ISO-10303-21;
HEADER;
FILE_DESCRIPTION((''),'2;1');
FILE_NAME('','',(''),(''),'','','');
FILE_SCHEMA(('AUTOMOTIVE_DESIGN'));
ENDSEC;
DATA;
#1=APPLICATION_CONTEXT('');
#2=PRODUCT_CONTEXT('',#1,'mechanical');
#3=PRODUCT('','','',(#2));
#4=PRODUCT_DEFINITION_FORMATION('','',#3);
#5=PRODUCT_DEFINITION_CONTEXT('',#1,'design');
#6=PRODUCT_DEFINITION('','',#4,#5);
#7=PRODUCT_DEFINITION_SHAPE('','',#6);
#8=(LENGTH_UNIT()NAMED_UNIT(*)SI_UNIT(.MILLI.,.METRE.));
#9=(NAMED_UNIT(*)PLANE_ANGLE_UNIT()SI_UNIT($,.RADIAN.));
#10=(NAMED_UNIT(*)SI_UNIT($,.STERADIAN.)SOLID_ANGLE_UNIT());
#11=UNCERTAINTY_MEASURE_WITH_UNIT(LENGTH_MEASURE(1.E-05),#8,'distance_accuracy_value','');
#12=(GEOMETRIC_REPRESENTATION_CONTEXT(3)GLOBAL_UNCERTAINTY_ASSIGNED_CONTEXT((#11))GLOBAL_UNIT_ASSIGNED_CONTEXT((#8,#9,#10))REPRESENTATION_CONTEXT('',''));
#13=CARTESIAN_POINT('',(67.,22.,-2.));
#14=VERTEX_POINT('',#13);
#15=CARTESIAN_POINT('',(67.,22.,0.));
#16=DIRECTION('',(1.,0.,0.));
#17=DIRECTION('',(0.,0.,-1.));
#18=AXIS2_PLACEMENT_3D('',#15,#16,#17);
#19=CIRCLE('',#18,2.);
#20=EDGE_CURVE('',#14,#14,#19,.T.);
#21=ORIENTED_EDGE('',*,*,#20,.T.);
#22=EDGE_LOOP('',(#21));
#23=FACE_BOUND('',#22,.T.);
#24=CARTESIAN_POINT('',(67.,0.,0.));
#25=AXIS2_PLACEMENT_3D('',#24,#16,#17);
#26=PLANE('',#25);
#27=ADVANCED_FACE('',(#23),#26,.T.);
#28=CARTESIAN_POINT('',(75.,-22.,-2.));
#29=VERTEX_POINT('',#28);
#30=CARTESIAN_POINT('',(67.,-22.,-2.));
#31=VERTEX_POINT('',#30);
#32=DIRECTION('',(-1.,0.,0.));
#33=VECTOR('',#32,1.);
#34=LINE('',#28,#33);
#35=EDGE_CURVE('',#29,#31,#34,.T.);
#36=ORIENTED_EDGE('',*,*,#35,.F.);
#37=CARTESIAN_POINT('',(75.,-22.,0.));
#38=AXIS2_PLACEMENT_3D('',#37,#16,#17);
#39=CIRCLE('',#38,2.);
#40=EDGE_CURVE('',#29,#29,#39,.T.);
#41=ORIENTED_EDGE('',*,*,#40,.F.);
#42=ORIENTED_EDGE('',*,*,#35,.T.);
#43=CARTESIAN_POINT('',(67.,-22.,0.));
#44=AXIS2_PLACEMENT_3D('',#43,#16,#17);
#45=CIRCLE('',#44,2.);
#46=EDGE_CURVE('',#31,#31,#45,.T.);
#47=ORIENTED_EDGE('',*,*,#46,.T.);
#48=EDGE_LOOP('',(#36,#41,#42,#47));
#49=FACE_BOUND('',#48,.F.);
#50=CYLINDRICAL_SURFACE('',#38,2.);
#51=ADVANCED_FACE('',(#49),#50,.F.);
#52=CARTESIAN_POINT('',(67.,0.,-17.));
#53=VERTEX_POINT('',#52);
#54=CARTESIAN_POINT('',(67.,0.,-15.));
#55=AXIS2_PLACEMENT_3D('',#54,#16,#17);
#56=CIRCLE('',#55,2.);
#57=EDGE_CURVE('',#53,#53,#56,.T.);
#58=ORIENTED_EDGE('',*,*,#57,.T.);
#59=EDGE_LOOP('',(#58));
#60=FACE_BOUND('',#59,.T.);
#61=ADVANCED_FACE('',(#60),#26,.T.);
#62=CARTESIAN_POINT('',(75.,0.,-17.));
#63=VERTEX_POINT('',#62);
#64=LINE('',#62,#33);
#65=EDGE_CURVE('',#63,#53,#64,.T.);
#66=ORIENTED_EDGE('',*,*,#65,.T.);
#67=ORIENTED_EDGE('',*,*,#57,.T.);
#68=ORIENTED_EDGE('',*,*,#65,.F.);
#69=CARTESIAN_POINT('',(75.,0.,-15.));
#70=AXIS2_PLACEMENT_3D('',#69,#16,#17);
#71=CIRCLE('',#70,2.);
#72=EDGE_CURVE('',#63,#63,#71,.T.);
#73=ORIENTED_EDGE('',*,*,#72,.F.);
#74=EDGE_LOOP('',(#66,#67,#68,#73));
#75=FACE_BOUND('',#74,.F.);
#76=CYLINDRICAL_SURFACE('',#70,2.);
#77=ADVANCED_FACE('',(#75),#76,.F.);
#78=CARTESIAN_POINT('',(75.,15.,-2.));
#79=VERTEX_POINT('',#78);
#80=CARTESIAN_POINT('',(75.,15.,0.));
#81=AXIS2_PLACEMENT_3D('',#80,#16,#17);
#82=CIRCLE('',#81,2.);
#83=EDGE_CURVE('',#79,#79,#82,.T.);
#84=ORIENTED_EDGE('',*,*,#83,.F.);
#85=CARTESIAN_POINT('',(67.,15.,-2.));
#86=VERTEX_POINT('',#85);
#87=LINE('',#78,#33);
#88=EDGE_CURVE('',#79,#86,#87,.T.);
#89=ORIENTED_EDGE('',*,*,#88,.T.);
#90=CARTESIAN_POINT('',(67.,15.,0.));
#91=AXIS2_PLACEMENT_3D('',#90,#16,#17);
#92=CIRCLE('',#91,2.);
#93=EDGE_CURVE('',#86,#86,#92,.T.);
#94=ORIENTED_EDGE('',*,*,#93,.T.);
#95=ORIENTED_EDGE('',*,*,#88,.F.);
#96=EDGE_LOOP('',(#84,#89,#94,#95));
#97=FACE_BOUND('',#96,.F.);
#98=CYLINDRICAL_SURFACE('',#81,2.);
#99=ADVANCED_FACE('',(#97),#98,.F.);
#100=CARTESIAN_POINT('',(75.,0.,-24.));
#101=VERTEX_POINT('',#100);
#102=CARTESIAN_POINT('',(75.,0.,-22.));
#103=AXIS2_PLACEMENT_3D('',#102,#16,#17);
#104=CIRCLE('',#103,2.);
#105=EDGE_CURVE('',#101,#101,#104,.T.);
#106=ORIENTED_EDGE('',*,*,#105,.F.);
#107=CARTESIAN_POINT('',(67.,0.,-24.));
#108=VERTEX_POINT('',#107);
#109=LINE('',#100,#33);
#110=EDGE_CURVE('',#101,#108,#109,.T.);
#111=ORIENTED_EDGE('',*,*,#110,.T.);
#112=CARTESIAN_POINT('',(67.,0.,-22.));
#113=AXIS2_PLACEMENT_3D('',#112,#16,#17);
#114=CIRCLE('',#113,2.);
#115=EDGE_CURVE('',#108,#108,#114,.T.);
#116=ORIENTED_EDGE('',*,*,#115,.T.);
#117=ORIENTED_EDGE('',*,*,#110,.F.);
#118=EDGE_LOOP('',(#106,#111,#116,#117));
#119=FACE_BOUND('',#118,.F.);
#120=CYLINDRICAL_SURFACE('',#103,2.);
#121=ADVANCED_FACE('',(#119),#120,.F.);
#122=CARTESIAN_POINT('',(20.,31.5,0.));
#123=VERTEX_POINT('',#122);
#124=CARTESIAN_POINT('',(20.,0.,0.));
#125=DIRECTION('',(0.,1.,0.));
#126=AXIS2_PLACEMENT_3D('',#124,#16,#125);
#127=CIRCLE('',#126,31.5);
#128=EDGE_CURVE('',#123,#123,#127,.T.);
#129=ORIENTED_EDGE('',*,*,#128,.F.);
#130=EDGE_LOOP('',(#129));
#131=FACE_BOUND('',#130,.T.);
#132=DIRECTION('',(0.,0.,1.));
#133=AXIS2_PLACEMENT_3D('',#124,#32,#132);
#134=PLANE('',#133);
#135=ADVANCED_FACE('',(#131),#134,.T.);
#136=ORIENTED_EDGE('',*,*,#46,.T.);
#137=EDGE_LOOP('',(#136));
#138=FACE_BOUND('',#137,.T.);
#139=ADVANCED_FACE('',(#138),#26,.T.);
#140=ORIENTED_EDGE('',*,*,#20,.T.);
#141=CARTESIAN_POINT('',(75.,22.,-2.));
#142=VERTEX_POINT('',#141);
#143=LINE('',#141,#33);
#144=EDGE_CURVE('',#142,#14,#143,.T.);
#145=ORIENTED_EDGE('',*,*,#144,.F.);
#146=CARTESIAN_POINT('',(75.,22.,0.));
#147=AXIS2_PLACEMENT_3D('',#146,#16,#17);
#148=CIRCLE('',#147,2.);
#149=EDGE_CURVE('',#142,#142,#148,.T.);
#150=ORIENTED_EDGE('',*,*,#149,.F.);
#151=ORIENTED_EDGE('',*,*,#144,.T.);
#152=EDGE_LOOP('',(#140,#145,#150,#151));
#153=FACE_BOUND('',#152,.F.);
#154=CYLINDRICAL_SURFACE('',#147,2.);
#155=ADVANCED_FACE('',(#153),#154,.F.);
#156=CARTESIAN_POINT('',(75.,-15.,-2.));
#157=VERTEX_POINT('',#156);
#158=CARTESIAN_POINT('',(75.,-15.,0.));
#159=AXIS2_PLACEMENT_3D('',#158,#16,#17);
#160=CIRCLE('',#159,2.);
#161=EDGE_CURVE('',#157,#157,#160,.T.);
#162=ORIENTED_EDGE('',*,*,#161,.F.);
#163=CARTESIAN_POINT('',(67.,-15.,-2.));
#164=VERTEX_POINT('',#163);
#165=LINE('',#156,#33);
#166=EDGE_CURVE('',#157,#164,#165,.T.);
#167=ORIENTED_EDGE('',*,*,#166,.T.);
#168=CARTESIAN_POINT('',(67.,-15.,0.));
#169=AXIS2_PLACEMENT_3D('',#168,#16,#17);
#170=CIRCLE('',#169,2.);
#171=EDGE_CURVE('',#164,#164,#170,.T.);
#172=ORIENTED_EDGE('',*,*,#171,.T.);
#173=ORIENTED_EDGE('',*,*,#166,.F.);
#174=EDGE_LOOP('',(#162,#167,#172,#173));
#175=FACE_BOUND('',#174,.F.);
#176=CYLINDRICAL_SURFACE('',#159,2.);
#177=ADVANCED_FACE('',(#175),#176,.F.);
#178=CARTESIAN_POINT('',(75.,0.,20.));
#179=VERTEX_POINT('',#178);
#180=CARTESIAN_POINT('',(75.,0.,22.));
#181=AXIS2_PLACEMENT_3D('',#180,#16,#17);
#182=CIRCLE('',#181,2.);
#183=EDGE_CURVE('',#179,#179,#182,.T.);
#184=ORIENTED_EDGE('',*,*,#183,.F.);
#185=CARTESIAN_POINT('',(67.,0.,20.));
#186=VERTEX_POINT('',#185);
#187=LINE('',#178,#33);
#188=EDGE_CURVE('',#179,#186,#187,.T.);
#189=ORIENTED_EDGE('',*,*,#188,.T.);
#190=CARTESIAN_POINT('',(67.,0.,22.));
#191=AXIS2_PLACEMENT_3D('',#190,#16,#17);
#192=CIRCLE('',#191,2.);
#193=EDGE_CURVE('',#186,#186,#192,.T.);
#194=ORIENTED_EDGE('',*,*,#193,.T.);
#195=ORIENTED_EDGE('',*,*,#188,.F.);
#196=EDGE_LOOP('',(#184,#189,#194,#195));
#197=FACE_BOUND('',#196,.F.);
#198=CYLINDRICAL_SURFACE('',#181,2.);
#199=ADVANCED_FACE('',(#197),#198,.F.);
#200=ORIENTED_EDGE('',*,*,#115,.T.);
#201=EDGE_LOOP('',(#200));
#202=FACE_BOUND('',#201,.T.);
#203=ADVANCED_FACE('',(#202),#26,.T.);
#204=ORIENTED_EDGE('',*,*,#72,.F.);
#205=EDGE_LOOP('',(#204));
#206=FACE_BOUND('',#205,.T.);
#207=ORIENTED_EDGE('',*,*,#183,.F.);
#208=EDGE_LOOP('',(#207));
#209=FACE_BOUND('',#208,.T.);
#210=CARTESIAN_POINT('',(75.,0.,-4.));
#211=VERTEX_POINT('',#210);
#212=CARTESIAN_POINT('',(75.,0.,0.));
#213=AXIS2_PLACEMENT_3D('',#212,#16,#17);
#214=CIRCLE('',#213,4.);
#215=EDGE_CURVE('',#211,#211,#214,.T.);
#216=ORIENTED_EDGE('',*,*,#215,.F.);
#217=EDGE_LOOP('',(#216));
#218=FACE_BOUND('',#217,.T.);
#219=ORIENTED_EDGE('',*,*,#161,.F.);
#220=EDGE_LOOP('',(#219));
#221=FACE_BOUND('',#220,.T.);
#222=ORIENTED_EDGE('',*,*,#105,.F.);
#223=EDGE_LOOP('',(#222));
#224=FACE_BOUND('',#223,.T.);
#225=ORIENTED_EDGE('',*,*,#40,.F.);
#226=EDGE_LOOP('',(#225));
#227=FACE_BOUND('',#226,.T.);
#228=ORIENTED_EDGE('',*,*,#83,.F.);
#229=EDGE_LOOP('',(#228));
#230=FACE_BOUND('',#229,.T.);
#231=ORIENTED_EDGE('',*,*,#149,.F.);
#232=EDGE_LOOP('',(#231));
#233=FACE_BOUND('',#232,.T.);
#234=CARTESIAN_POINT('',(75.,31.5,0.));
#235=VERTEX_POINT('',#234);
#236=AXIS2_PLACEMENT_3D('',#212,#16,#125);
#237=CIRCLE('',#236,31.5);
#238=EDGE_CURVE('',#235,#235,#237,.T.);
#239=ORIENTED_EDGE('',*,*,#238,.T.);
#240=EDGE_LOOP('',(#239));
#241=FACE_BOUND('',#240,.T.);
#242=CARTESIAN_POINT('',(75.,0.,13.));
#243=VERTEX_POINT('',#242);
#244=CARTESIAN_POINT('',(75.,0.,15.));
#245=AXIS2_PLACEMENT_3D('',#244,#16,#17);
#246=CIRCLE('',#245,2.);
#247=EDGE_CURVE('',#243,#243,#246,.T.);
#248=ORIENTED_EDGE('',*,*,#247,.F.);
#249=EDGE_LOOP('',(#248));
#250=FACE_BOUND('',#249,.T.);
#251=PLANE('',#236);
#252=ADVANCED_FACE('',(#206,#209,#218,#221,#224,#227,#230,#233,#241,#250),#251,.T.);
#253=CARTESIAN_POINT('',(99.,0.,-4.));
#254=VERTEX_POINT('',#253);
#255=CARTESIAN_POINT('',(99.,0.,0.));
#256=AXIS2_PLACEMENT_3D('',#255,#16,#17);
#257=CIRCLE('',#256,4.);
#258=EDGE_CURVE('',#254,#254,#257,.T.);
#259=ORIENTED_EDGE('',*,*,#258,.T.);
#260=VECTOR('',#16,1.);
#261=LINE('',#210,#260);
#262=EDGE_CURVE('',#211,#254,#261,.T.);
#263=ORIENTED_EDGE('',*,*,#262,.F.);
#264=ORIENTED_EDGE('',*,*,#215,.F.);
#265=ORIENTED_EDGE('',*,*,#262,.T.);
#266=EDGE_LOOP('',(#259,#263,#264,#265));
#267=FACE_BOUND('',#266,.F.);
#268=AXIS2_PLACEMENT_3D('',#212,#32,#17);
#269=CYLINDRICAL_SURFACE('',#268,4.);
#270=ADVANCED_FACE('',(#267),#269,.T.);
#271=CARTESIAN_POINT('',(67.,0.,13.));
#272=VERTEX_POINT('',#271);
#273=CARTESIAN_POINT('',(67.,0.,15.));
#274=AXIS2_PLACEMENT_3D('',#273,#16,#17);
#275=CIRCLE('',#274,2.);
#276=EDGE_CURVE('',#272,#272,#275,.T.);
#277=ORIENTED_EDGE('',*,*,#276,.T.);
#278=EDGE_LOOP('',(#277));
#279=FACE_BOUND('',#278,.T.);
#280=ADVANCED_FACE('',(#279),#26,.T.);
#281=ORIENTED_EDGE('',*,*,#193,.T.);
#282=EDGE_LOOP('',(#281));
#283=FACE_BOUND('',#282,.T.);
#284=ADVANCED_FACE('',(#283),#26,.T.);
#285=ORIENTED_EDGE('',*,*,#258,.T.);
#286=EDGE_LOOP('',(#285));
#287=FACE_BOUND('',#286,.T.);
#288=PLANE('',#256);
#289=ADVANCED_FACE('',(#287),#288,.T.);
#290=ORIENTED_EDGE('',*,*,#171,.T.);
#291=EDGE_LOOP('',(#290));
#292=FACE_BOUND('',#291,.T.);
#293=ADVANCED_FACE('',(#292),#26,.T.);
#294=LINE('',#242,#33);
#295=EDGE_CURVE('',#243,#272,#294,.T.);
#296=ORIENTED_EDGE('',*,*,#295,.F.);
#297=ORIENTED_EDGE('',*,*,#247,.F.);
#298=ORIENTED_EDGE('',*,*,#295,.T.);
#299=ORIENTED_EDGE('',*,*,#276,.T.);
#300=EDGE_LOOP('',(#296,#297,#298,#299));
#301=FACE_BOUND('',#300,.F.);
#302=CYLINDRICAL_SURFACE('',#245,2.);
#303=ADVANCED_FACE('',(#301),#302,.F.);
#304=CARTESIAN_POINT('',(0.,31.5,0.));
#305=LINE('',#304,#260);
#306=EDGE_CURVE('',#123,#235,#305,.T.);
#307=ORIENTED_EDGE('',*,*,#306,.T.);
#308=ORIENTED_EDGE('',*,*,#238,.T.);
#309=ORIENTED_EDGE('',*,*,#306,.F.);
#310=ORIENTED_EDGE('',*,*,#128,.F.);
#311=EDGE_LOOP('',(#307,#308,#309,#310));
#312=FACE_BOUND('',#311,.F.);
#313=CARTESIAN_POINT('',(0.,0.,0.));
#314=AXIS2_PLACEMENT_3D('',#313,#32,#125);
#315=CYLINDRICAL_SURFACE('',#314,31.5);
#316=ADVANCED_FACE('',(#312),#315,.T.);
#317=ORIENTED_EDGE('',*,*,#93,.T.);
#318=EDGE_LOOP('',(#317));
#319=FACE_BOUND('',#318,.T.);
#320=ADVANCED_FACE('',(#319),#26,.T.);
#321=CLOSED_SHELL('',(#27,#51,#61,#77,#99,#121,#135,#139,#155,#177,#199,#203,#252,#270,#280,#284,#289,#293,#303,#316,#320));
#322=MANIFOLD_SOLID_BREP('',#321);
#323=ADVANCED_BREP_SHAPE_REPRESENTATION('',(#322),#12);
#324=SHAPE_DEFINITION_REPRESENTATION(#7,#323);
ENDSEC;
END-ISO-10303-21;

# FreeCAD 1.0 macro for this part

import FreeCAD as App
import Part
import Sketcher
from FreeCAD import Vector
Q = App.Units.Quantity

doc = App.newDocument("Part")
body = doc.addObject("PartDesign::Body", "Body")

# Sketch on YZ plane
sketch1 = body.newObject("Sketcher::SketchObject", "Sketch")
sketch1.AttachmentSupport = (doc.getObject("YZ_Plane"), [""])
sketch1.MapMode = "FlatFace"
sketch1.addGeometry(Part.Circle(Vector(0, 0, 0), Vector(0, 0, 1), 32), False)
sketch1.addConstraint(Sketcher.Constraint("Coincident", 0, 3, -1, 1))
sketch1.addConstraint(Sketcher.Constraint("Diameter", 0, Q("63 mm")))
pad1 = body.newObject("PartDesign::Pad", "Pad")
pad1.Profile = sketch1
pad1.Length = 75

# Sketch on YZ plane
sketch2 = body.newObject("Sketcher::SketchObject", "Sketch001")
sketch2.AttachmentSupport = (doc.getObject("YZ_Plane"), [""])
sketch2.MapMode = "FlatFace"
sketch2.AttachmentOffset = App.Placement(Vector(0, 0, 75), App.Rotation())
sketch2.addGeometry(Part.Circle(Vector(0, 0, 0), Vector(0, 0, 1), 4), False)
sketch2.addConstraint(Sketcher.Constraint("Coincident", 0, 3, -1, 1))
sketch2.addConstraint(Sketcher.Constraint("Diameter", 0, Q("8 mm")))
pad2 = body.newObject("PartDesign::Pad", "Pad001")
pad2.Profile = sketch2
pad2.Length = 24

# Sketch on YZ plane
sketch3 = body.newObject("Sketcher::SketchObject", "Sketch002")
sketch3.AttachmentSupport = (doc.getObject("YZ_Plane"), [""])
sketch3.MapMode = "FlatFace"
sketch3.AttachmentOffset = App.Placement(Vector(0, 0, 75), App.Rotation())
sketch3.addGeometry(Part.Circle(Vector(15, 0, 0), Vector(0, 0, 1), 2), False)
sketch3.addGeometry(Part.Circle(Vector(22, 0, 0), Vector(0, 0, 1), 2), False)
sketch3.addGeometry(Part.Circle(Vector(0, -15, 0), Vector(0, 0, 1), 2), False)
sketch3.addGeometry(Part.Circle(Vector(0, -22, 0), Vector(0, 0, 1), 2), False)
sketch3.addGeometry(Part.Circle(Vector(-15, 0, 0), Vector(0, 0, 1), 2), False)
sketch3.addGeometry(Part.Circle(Vector(-22, 0, 0), Vector(0, 0, 1), 2), False)
sketch3.addGeometry(Part.Circle(Vector(0, 15, 0), Vector(0, 0, 1), 2), False)
sketch3.addGeometry(Part.Circle(Vector(0, 22, 0), Vector(0, 0, 1), 2), False)
sketch3.addConstraint(Sketcher.Constraint("Equal", 0, 1))
sketch3.addConstraint(Sketcher.Constraint("Equal", 1, 2))
sketch3.addConstraint(Sketcher.Constraint("Equal", 2, 3))
sketch3.addConstraint(Sketcher.Constraint("Equal", 3, 4))
sketch3.addConstraint(Sketcher.Constraint("Equal", 4, 5))
sketch3.addConstraint(Sketcher.Constraint("Equal", 5, 6))
sketch3.addConstraint(Sketcher.Constraint("Equal", 6, 7))
sketch3.addConstraint(Sketcher.Constraint("Symmetric", 0, 3, 4, 3, -1, 1))
sketch3.addConstraint(Sketcher.Constraint("Symmetric", 1, 3, 5, 3, -1, 1))
sketch3.addConstraint(Sketcher.Constraint("Symmetric", 2, 3, 6, 3, -1, 1))
sketch3.addConstraint(Sketcher.Constraint("Symmetric", 3, 3, 7, 3, -1, 1))
sketch3.addConstraint(Sketcher.Constraint("PointOnObject", 0, 3, -1))
sketch3.addConstraint(Sketcher.Constraint("PointOnObject", 1, 3, -1))
sketch3.addConstraint(Sketcher.Constraint("PointOnObject", 2, 3, -2))
sketch3.addConstraint(Sketcher.Constraint("PointOnObject", 3, 3, -2))
sketch3.addConstraint(Sketcher.Constraint("Diameter", 0, Q("4 mm")))
sketch3.addConstraint(Sketcher.Constraint("DistanceX", -1, 1, 0, 3, Q("15 mm")))
sketch3.addConstraint(Sketcher.Constraint("DistanceX", -1, 1, 1, 3, Q("22 mm")))
sketch3.addConstraint(Sketcher.Constraint("DistanceY", 2, 3, -1, 1, Q("15 mm")))
sketch3.addConstraint(Sketcher.Constraint("DistanceY", 3, 3, -1, 1, Q("22 mm")))
pocket1 = body.newObject("PartDesign::Pocket", "Pocket")
pocket1.Profile = sketch3
pocket1.Length = 8

# Sketch on YZ plane
sketch4 = body.newObject("Sketcher::SketchObject", "Sketch003")
sketch4.AttachmentSupport = (doc.getObject("YZ_Plane"), [""])
sketch4.MapMode = "FlatFace"
sketch4.addGeometry(Part.Circle(Vector(0, 0, 0), Vector(0, 0, 1), 32), False)
sketch4.addConstraint(Sketcher.Constraint("Coincident", 0, 3, -1, 1))
sketch4.addConstraint(Sketcher.Constraint("Diameter", 0, Q("63 mm")))
pocket2 = body.newObject("PartDesign::Pocket", "Pocket001")
pocket2.Profile = sketch4
pocket2.Length = 20
pocket2.Reversed = True

doc.recompute()
